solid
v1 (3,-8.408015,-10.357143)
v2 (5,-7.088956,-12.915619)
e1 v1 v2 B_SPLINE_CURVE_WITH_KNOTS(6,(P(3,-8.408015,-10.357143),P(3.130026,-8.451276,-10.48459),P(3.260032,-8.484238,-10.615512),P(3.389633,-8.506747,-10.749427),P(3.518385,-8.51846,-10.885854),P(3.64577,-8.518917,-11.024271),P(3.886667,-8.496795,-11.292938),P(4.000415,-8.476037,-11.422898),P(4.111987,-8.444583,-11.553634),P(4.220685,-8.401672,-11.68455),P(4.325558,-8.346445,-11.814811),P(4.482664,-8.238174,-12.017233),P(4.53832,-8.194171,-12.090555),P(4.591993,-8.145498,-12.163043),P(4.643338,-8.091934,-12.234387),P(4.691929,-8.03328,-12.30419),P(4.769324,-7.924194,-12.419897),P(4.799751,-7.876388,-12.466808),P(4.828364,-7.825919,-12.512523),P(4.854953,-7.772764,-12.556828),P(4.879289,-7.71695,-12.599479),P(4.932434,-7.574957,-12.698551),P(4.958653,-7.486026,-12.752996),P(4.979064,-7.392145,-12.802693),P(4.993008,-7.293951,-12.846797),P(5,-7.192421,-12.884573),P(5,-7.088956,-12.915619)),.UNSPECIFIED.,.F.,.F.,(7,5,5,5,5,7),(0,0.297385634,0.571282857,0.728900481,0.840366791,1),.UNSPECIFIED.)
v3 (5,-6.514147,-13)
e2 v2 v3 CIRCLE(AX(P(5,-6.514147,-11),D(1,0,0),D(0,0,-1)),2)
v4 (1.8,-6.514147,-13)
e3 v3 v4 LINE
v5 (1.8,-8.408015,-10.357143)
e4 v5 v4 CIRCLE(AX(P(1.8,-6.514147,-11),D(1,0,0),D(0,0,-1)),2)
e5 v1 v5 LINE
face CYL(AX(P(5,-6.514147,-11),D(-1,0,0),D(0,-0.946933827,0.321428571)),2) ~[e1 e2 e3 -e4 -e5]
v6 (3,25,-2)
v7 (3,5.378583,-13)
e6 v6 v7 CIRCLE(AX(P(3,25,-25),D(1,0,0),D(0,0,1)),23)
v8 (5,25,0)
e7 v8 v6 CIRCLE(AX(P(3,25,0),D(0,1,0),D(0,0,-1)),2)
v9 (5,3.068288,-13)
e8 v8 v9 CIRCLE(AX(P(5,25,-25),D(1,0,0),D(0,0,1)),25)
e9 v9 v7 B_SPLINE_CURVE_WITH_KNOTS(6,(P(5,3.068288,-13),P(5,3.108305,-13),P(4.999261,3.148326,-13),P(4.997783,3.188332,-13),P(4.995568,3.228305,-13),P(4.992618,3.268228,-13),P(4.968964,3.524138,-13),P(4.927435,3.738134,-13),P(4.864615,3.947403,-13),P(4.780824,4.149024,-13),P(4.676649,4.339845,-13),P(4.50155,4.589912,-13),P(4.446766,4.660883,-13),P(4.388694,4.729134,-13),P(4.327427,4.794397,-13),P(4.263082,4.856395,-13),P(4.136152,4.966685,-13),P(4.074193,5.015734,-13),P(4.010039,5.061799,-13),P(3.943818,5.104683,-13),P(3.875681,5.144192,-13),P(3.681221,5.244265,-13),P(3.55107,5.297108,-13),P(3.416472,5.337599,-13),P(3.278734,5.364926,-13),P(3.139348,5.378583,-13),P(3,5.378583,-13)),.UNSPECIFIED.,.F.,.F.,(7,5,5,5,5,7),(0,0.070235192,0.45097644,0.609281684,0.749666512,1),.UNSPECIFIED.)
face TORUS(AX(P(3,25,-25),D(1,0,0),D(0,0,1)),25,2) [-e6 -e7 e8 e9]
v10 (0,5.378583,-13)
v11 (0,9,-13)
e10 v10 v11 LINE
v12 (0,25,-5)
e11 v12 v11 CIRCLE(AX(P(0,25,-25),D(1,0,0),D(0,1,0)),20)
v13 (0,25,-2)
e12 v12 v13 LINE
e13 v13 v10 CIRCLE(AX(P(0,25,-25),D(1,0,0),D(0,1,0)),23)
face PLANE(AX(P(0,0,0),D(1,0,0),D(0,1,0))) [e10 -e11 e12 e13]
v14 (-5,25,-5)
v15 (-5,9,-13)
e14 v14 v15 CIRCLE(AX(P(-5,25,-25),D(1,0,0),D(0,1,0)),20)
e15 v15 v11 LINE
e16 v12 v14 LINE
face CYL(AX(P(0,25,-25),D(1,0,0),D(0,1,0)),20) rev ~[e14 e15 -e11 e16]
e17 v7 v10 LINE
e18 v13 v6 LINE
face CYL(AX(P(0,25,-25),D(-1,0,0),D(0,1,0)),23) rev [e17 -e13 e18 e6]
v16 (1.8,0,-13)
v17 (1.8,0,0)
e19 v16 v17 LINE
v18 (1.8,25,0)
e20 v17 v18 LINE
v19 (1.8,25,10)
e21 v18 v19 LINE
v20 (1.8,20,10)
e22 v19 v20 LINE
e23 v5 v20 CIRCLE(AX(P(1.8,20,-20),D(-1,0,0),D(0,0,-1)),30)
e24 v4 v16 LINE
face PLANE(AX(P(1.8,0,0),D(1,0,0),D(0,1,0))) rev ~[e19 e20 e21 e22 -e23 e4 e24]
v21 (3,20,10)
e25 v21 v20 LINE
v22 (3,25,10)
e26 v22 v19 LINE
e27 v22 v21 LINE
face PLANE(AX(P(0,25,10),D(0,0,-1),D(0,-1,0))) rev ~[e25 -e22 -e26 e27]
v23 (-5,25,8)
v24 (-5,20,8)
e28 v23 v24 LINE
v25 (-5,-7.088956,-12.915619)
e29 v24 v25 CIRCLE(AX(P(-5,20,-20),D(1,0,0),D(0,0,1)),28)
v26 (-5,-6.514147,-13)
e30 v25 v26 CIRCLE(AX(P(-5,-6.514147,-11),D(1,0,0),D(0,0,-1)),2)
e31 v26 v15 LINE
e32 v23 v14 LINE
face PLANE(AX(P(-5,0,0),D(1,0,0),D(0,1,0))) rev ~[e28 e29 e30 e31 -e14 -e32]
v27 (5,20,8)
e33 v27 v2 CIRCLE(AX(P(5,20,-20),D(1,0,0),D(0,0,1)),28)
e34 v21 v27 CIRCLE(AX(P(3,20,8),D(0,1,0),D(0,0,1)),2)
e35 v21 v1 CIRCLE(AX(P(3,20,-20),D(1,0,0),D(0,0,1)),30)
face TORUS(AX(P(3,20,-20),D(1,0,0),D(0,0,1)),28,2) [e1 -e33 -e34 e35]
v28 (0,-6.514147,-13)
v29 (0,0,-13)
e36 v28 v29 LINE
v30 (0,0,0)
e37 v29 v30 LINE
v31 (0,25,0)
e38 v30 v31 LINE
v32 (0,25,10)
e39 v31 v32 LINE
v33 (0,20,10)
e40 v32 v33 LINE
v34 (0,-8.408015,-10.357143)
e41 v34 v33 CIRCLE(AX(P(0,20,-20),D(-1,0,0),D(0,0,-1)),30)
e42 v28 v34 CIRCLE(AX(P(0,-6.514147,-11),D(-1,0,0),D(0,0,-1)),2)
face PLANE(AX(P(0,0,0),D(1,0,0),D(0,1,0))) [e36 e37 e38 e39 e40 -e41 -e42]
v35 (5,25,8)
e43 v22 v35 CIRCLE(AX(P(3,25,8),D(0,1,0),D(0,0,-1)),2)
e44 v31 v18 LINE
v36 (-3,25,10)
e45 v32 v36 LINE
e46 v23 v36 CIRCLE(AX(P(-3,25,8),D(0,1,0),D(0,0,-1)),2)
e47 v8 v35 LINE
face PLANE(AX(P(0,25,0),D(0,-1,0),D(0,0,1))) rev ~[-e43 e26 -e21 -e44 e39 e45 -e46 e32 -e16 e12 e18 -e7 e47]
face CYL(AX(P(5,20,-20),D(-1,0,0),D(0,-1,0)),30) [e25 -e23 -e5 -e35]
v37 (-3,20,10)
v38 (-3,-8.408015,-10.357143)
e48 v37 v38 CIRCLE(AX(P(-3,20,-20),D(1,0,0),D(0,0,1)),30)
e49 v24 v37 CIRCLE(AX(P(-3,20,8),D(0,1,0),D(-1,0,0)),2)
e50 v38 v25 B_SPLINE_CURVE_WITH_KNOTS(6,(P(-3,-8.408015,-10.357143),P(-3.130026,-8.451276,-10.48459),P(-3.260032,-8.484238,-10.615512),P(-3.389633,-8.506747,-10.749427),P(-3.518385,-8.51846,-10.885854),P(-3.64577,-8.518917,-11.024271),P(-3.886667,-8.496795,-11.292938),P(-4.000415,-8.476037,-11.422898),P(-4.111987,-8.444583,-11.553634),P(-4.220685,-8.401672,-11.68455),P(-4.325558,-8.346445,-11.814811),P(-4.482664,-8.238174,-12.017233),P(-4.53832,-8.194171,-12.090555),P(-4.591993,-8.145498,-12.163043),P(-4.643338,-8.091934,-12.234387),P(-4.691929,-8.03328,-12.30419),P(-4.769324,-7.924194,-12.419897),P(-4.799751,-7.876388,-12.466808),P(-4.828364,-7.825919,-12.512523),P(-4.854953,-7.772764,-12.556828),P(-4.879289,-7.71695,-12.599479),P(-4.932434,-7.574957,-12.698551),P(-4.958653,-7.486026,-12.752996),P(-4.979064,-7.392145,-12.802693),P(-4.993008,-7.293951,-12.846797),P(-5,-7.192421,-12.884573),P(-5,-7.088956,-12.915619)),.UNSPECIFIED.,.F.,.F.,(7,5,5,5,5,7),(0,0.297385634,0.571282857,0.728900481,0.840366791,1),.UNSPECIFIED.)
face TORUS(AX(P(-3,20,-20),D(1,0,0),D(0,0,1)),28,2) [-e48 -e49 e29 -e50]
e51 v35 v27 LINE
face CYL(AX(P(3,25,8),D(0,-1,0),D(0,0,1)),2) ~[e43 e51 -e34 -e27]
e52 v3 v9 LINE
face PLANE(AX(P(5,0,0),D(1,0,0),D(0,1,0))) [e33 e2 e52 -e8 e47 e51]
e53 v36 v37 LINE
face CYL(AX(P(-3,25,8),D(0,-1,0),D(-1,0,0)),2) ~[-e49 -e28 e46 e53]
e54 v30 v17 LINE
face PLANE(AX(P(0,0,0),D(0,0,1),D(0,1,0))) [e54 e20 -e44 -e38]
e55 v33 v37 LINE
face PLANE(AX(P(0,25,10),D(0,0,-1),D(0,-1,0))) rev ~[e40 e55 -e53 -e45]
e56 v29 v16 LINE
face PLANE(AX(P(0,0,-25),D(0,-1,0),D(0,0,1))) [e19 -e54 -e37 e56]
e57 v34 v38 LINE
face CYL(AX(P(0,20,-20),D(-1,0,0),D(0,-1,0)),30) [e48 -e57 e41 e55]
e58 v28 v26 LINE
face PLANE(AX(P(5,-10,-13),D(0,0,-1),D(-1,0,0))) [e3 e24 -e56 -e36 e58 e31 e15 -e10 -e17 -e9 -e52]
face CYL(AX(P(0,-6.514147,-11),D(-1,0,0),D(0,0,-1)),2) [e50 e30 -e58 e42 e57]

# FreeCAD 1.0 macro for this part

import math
import FreeCAD as App
import Part
import Sketcher
from FreeCAD import Vector


def edges_at(feature, points):
    """Names of the edges that pass closest to the given points."""
    edges = feature.Shape.Edges
    near = lambda p: min(range(len(edges)), key=lambda i: edges[i].distToShape(Part.Vertex(*p))[0])
    return sorted({f"Edge{near(p) + 1}" for p in points})


def add_polygon(sketch, points):
    """Adds a closed chain of lines whose ends are joined by coincident constraints."""
    first, n = sketch.GeometryCount, len(points)
    for a, b in zip(points, points[1:] + points[:1]):
        sketch.addGeometry(Part.LineSegment(App.Vector(*a, 0), App.Vector(*b, 0)), False)
    for i in range(n):
        sketch.addConstraint(Sketcher.Constraint("Coincident", first + i, 2, first + (i + 1) % n, 1))

doc = App.newDocument("Part")
params = doc.addObject("Spreadsheet::Sheet", "Params")
for row, (alias, value) in enumerate([
    ("sketch1_width", "35 mm"),
    ("sketch1_radius", "23 mm"),
    ("pad1_length", "5 mm"),
    ("sketch2_width", "35 mm"),
    ("sketch2_radius", "20 mm"),
    ("pad2_length", "5 mm"),
    ("sketch3_width", "35 mm"),
    ("sketch3_width2", "25 mm"),
    ("pocket1_length", "1.8 mm"),
    ("fillet_radius", "30 mm"),
    ("pocket2_length", "12 mm"),
    ("fillet2_radius", "2 mm"),
], start=1):
    params.set(f"A{row}", alias)
    params.set(f"B{row}", "=" + value)
    params.setAlias(f"B{row}", alias)

body = doc.addObject("PartDesign::Body", "Body")

sketch1 = body.newObject("Sketcher::SketchObject", "Sketch")
sketch1.AttachmentSupport = (doc.getObject("YZ_Plane"), [""])
sketch1.MapMode = "FlatFace"
sketch1.addGeometry([
    Part.LineSegment(Vector(-10, -25, 0), Vector(2, -25, 0)),
    Part.ArcOfCircle(Part.Circle(Vector(25, -25, 0), Vector(0, 0, 1), 23), math.radians(90), math.radians(180)),
    Part.LineSegment(Vector(25, -2, 0), Vector(25, 10, 0)),
    Part.LineSegment(Vector(25, 10, 0), Vector(-10, 10, 0)),
    Part.LineSegment(Vector(-10, 10, 0), Vector(-10, -25, 0)),
], False)
sketch1.addConstraint([
    Sketcher.Constraint("Coincident", 0, 2, 1, 2),
    Sketcher.Constraint("Coincident", 1, 1, 2, 1),
    Sketcher.Constraint("Coincident", 2, 2, 3, 1),
    Sketcher.Constraint("Coincident", 3, 2, 4, 1),
    Sketcher.Constraint("Coincident", 4, 2, 0, 1),
    Sketcher.Constraint("Horizontal", 0),
    Sketcher.Constraint("Vertical", 2),
    Sketcher.Constraint("Horizontal", 3),
    Sketcher.Constraint("Vertical", 4),
    Sketcher.Constraint("Horizontal", 1, 3, 0, 2),
    Sketcher.Constraint("Equal", 0, 2),
    Sketcher.Constraint("Equal", 3, 4),
    Sketcher.Constraint("DistanceX", 3, 2, 3, 1, 35.0),
    Sketcher.Constraint("DistanceX", -1, 1, 0, 2, 2.0),
    Sketcher.Constraint("DistanceY", 1, 1, -1, 1, 2.0),
    Sketcher.Constraint("Radius", 1, 23.0),
])
sketch1.setExpression("Constraints[12]", "Params.sketch1_width")
sketch1.setExpression("Constraints[15]", "Params.sketch1_radius")
pad1 = body.newObject("PartDesign::Pad", "Pad")
pad1.Profile = sketch1
pad1.setExpression("Length", "Params.pad1_length")

sketch2 = body.newObject("Sketcher::SketchObject", "Sketch001")
sketch2.AttachmentSupport = (doc.getObject("YZ_Plane"), [""])
sketch2.MapMode = "FlatFace"
sketch2.addGeometry([
    Part.LineSegment(Vector(-10, -25, 0), Vector(5, -25, 0)),
    Part.ArcOfCircle(Part.Circle(Vector(25, -25, 0), Vector(0, 0, 1), 20), math.radians(90), math.radians(180)),
    Part.LineSegment(Vector(25, -5, 0), Vector(25, 10, 0)),
    Part.LineSegment(Vector(25, 10, 0), Vector(-10, 10, 0)),
    Part.LineSegment(Vector(-10, 10, 0), Vector(-10, -25, 0)),
], False)
sketch2.addConstraint([
    Sketcher.Constraint("Coincident", 0, 2, 1, 2),
    Sketcher.Constraint("Coincident", 1, 1, 2, 1),
    Sketcher.Constraint("Coincident", 2, 2, 3, 1),
    Sketcher.Constraint("Coincident", 3, 2, 4, 1),
    Sketcher.Constraint("Coincident", 4, 2, 0, 1),
    Sketcher.Constraint("Horizontal", 0),
    Sketcher.Constraint("Vertical", 2),
    Sketcher.Constraint("Horizontal", 3),
    Sketcher.Constraint("Vertical", 4),
    Sketcher.Constraint("Horizontal", 1, 3, 0, 2),
    Sketcher.Constraint("Equal", 0, 2),
    Sketcher.Constraint("Equal", 3, 4),
    Sketcher.Constraint("DistanceX", 3, 2, 3, 1, 35.0),
    Sketcher.Constraint("DistanceX", -1, 1, 0, 2, 5.0),
    Sketcher.Constraint("DistanceY", 1, 1, -1, 1, 5.0),
    Sketcher.Constraint("Radius", 1, 20.0),
])
sketch2.setExpression("Constraints[12]", "Params.sketch2_width")
sketch2.setExpression("Constraints[15]", "Params.sketch2_radius")
pad2 = body.newObject("PartDesign::Pad", "Pad001")
pad2.Profile = sketch2
pad2.setExpression("Length", "Params.pad2_length")
pad2.Reversed = True

sketch3 = body.newObject("Sketcher::SketchObject", "Sketch002")
sketch3.AttachmentSupport = (doc.getObject("YZ_Plane"), [""])
sketch3.MapMode = "FlatFace"
add_polygon(sketch3, [(0, -25), (0, 0), (25, 0), (25, 10), (-10, 10), (-10, -25)])
sketch3.addConstraint([
    Sketcher.Constraint("Vertical", 0),
    Sketcher.Constraint("Horizontal", 1),
    Sketcher.Constraint("Vertical", 2),
    Sketcher.Constraint("Horizontal", 3),
    Sketcher.Constraint("Vertical", 4),
    Sketcher.Constraint("Horizontal", 5),
    Sketcher.Constraint("Coincident", 0, 2, -1, 1),
    Sketcher.Constraint("Equal", 1, 0),
    Sketcher.Constraint("Equal", 5, 2),
    Sketcher.Constraint("DistanceX", 3, 2, 3, 1, 35.0),
    Sketcher.Constraint("DistanceX", 1, 1, 1, 2, 25.0),
])
sketch3.setExpression("Constraints[15]", "Params.sketch3_width")
sketch3.setExpression("Constraints[16]", "Params.sketch3_width2")
pocket1 = body.newObject("PartDesign::Pocket", "Pocket")
pocket1.Profile = sketch3
pocket1.setExpression("Length", "Params.pocket1_length")
pocket1.Reversed = True
doc.recompute()

fillet = body.newObject("PartDesign::Fillet", "Fillet")
fillet.Base = (pocket1, edges_at(pocket1, [(3.4, -10, 10), (-2.5, -10, 10)]))
fillet.setExpression("Radius", "Params.fillet_radius")

sketch4 = body.newObject("Sketcher::SketchObject", "Sketch003")
sketch4.AttachmentSupport = (doc.getObject("XY_Plane"), [""])
sketch4.MapMode = "FlatFace"
sketch4.AttachmentOffset = App.Placement(Vector(0, 0, -25), App.Rotation())
add_polygon(sketch4, [(-15, -30), (-15, 20), (22, 20), (22, -30)])
sketch4.addConstraint([
    Sketcher.Constraint("Vertical", 0),
    Sketcher.Constraint("Horizontal", 1),
    Sketcher.Constraint("Vertical", 2),
    Sketcher.Constraint("Horizontal", 3),
    Sketcher.Constraint("DistanceY", -1, 1, 0, 2, 19.51),
    Sketcher.Constraint("DistanceX", 1, 1, 1, 2, 37.1512),
    Sketcher.Constraint("DistanceY", 0, 1, 0, 2, 49.4617),
    Sketcher.Constraint("DistanceX", 0, 2, -1, 1, 15.333),
])
pocket2 = body.newObject("PartDesign::Pocket", "Pocket001")
pocket2.Profile = sketch4
pocket2.setExpression("Length", "Params.pocket2_length")
pocket2.Reversed = True
doc.recompute()

fillet2 = body.newObject("PartDesign::Fillet", "Fillet001")
fillet2.Base = (pocket2, edges_at(pocket2, [
    (3.4, -9.172, -13),
    (-2.5, -9.172, -13),
    (5, 22.5, 10),
    (5, 1.426, 3.558),
    (-5, 22.5, 10),
    (-5, 1.426, 3.558),
    (5, 13.753, -4.938),
]))
fillet2.setExpression("Radius", "Params.fillet2_radius")

doc.recompute()
